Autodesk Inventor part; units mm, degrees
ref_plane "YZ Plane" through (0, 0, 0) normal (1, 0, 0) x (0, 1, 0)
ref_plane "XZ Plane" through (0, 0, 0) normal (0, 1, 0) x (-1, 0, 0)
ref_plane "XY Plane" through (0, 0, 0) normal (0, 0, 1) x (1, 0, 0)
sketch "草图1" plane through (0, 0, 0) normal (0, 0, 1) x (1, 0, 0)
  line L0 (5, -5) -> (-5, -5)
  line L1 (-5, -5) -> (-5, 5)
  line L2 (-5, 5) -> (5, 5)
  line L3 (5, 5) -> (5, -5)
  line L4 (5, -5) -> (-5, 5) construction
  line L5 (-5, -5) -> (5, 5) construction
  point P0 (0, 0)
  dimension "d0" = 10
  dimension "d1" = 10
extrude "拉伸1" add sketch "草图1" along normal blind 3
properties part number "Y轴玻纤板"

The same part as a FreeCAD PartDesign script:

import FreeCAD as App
import Part
import Sketcher
from FreeCAD import Vector


def add_polygon(sketch, points):
    """Adds a closed chain of lines whose ends are joined by coincident constraints."""
    first, n = sketch.GeometryCount, len(points)
    for a, b in zip(points, points[1:] + points[:1]):
        sketch.addGeometry(Part.LineSegment(App.Vector(*a, 0), App.Vector(*b, 0)), False)
    for i in range(n):
        sketch.addConstraint(Sketcher.Constraint("Coincident", first + i, 2, first + (i + 1) % n, 1))

doc = App.newDocument("Part")
body = doc.addObject("PartDesign::Body", "Body")

# Sketch on XY plane
sketch1 = body.newObject("Sketcher::SketchObject", "Sketch")
sketch1.AttachmentSupport = (doc.getObject("XY_Plane"), [""])
sketch1.MapMode = "FlatFace"
add_polygon(sketch1, [(-5, -5), (5, -5), (5, 5), (-5, 5)])  # lines 0-3
sketch1.addConstraint([
    Sketcher.Constraint("Horizontal", 0),
    Sketcher.Constraint("Vertical", 1),
    Sketcher.Constraint("Horizontal", 2),
    Sketcher.Constraint("Vertical", 3),
    Sketcher.Constraint("Symmetric", 0, 2, 2, 2, -1, 1),
    Sketcher.Constraint("Equal", 2, 1),
    Sketcher.Constraint("DistanceX", 0, 1, 0, 2, 10.0),
])
pad1 = body.newObject("PartDesign::Pad", "Pad")
pad1.Profile = sketch1
pad1.Length = 3

doc.recompute()
